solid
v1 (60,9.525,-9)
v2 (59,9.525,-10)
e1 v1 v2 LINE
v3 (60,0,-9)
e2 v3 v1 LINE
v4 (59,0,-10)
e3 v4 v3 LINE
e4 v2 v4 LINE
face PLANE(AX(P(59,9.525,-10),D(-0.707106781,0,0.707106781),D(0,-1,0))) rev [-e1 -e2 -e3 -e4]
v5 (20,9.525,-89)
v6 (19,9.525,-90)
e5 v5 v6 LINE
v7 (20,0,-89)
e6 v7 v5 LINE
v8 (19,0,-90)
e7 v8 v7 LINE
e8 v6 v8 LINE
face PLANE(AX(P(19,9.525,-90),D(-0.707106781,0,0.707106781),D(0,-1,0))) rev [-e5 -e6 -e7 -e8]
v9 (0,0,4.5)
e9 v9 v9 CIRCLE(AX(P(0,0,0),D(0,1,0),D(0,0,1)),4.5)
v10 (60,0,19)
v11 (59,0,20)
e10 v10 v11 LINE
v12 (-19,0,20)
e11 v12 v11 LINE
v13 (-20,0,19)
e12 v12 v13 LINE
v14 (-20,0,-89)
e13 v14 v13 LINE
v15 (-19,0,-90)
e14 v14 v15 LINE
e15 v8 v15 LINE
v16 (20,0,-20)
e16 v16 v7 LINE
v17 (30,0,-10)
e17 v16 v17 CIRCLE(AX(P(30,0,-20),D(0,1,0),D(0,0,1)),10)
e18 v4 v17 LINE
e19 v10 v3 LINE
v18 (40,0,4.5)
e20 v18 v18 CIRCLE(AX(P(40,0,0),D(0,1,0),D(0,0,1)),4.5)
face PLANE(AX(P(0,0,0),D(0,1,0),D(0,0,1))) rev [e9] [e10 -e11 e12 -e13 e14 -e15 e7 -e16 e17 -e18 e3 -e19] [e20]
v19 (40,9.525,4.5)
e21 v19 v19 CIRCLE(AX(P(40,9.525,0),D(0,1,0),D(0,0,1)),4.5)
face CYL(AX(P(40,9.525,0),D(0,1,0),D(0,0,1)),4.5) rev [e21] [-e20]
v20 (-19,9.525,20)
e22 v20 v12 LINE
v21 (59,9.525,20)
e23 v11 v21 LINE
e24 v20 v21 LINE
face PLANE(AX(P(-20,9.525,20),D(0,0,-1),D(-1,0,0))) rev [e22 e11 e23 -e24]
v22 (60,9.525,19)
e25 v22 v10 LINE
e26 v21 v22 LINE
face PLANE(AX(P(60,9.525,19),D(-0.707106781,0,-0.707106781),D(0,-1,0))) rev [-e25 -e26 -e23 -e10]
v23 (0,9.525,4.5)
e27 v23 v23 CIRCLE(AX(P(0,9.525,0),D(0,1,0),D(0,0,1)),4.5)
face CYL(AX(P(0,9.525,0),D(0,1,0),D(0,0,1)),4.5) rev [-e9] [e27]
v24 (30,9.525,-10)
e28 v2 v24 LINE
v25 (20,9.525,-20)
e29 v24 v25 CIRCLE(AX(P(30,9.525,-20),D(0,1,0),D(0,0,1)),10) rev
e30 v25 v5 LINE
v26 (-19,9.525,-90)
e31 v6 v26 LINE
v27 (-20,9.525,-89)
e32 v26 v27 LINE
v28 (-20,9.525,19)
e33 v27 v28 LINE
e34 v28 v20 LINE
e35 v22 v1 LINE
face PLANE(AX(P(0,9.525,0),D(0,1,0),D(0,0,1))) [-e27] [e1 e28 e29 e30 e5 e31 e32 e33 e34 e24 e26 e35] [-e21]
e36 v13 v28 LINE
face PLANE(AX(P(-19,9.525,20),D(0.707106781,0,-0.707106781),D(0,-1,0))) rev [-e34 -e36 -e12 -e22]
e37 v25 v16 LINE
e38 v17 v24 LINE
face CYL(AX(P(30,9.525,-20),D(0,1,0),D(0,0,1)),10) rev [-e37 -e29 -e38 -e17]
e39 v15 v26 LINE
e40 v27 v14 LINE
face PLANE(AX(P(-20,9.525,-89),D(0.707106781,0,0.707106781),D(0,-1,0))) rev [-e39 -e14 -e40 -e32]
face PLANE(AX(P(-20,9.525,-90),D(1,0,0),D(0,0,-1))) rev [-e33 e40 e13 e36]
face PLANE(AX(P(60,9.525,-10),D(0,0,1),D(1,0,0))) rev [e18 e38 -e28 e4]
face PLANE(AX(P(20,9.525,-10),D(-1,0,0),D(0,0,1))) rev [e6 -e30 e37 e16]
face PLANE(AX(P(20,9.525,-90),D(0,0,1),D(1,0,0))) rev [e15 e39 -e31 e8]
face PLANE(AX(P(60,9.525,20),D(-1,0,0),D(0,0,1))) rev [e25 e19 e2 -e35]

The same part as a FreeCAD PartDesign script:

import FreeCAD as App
import Part
import Sketcher

V = App.Vector
Q = App.Units.Quantity


def edges_at(feature, points):
    """Names of the edges that pass closest to the given points."""
    edges = feature.Shape.Edges
    near = lambda p: min(range(len(edges)), key=lambda i: edges[i].distToShape(Part.Vertex(*p))[0])
    return sorted({f"Edge{near(p) + 1}" for p in points})

doc = App.newDocument("Part")
params = doc.addObject("Spreadsheet::Sheet", "Params")
for row, (alias, value) in enumerate([
    ("sketch1_width", "80 mm"),
    ("sketch1_height", "110 mm"),
    ("pad1_length", "9.525 mm"),
    ("sketch2_diameter", "9 mm"),
    ("hole_diameter", "9 mm"),
    ("fillet_radius", "10 mm"),
    ("chamfer_size", "1 mm"),
], start=1):
    params.set(f"A{row}", alias)
    params.set(f"B{row}", "=" + value)
    params.setAlias(f"B{row}", alias)

body = doc.addObject("PartDesign::Body", "Body")

sketch1 = body.newObject("Sketcher::SketchObject", "Sketch")
sketch1.AttachmentSupport = (doc.getObject("XZ_Plane"), [""])
sketch1.MapMode = "FlatFace"
sketch1.addGeometry([
    Part.LineSegment(V(-20, -90, 0), V(-20, 20, 0)),
    Part.LineSegment(V(-20, 20, 0), V(60, 20, 0)),
    Part.LineSegment(V(60, 20, 0), V(60, -10, 0)),
    Part.LineSegment(V(60, -10, 0), V(20, -10, 0)),
    Part.LineSegment(V(20, -10, 0), V(20, -90, 0)),
    Part.LineSegment(V(20, -90, 0), V(-20, -90, 0)),
], False)
sketch1.addConstraint([
    Sketcher.Constraint("Coincident", 0, 2, 1, 1),
    Sketcher.Constraint("Coincident", 1, 2, 2, 1),
    Sketcher.Constraint("Coincident", 2, 2, 3, 1),
    Sketcher.Constraint("Coincident", 3, 2, 4, 1),
    Sketcher.Constraint("Coincident", 4, 2, 5, 1),
    Sketcher.Constraint("Coincident", 5, 2, 0, 1),
    Sketcher.Constraint("Vertical", 0),
    Sketcher.Constraint("Horizontal", 1),
    Sketcher.Constraint("Vertical", 2),
    Sketcher.Constraint("Horizontal", 3),
    Sketcher.Constraint("Vertical", 4),
    Sketcher.Constraint("Horizontal", 5),
    Sketcher.Constraint("Equal", 3, 5),
    Sketcher.Constraint("Equal", 1, 4),
    Sketcher.Constraint("DistanceX", 1, 1, 1, 2, Q("80 mm")),
    Sketcher.Constraint("DistanceY", 0, 1, 0, 2, Q("110 mm")),
    Sketcher.Constraint("DistanceX", 0, 2, -1, 1, Q("20 mm")),
    Sketcher.Constraint("DistanceY", -1, 1, 0, 2, Q("20 mm")),
])
sketch1.setExpression("Constraints[14]", "Params.sketch1_width")
sketch1.setExpression("Constraints[15]", "Params.sketch1_height")
pad1 = body.newObject("PartDesign::Pad", "Pad")
pad1.Profile = sketch1
pad1.setExpression("Length", "Params.pad1_length")
pad1.Reversed = True

sketch2 = body.newObject("Sketcher::SketchObject", "Sketch001")
sketch2.AttachmentSupport = (doc.getObject("XZ_Plane"), [""])
sketch2.MapMode = "FlatFace"
sketch2.AttachmentOffset = App.Placement(V(0, 0, -9.525), App.Rotation())
sketch2.addGeometry([
    Part.Circle(V(0, 0, 0), V(0, 0, 1), 4.5),
    Part.Circle(V(40, 0, 0), V(0, 0, 1), 4.5),
], False)
sketch2.addConstraint([
    Sketcher.Constraint("Coincident", 0, 3, -1, 1),
    Sketcher.Constraint("Equal", 0, 1),
    Sketcher.Constraint("PointOnObject", 1, 3, -1),
    Sketcher.Constraint("Diameter", 0, Q("9 mm")),
    Sketcher.Constraint("DistanceX", -1, 1, 1, 3, Q("40 mm")),
])
sketch2.setExpression("Constraints[3]", "Params.sketch2_diameter")
doc.recompute()
hole = body.newObject("PartDesign::Hole", "Hole")
hole.Profile = sketch2
hole.ThreadType = "None"
hole.setExpression("Diameter", "Params.hole_diameter")
hole.DepthType = "ThroughAll"
hole.Reversed = True
doc.recompute()

fillet = body.newObject("PartDesign::Fillet", "Fillet")
fillet.Base = (hole, edges_at(hole, [(20, 4.763, -10)]))
fillet.setExpression("Radius", "Params.fillet_radius")
doc.recompute()

chamfer = body.newObject("PartDesign::Chamfer", "Chamfer")
chamfer.Base = (fillet, edges_at(fillet, [
    (20, 4.763, -90),
    (60, 4.763, -10),
    (60, 4.763, 20),
    (-20, 4.763, 20),
    (-20, 4.763, -90),
]))
chamfer.setExpression("Size", "Params.chamfer_size")

doc.recompute()
